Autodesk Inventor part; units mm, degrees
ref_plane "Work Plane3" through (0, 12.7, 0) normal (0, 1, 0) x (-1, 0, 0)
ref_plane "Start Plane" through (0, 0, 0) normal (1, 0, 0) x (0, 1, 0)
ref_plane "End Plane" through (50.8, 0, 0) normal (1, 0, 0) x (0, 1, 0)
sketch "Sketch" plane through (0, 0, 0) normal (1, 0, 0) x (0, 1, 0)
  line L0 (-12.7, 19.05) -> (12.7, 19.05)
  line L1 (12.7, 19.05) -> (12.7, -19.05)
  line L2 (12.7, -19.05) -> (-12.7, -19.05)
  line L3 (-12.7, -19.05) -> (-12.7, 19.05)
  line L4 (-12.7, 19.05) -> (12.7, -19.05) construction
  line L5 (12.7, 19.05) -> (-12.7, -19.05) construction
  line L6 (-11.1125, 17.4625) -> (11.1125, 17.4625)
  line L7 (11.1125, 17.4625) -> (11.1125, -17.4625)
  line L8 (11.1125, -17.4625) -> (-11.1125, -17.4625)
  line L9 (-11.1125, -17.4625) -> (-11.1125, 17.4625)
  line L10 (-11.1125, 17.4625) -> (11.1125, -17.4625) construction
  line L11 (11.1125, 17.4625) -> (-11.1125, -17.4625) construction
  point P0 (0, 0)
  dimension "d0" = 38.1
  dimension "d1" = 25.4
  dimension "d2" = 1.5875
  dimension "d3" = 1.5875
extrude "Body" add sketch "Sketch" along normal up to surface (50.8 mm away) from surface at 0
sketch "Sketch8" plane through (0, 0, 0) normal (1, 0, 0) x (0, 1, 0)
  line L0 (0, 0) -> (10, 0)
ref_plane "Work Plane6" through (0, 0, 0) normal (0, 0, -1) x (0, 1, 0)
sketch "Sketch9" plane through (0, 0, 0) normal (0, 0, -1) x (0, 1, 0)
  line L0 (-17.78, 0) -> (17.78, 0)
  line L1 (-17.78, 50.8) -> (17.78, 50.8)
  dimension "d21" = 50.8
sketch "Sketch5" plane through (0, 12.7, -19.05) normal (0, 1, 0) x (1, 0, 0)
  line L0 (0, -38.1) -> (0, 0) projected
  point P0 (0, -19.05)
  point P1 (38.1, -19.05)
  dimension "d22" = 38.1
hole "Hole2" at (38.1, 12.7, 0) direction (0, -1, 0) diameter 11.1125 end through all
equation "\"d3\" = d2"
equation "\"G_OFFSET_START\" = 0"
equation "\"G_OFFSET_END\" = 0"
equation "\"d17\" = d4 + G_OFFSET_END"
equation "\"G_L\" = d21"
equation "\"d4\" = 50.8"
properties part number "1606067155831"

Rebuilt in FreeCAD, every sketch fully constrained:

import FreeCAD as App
import Part
import Sketcher
Q = App.Units.Quantity


def add_polygon(sketch, points):
    """Adds a closed chain of lines whose ends are joined by coincident constraints."""
    first, n = sketch.GeometryCount, len(points)
    for a, b in zip(points, points[1:] + points[:1]):
        sketch.addGeometry(Part.LineSegment(App.Vector(*a, 0), App.Vector(*b, 0)), False)
    for i in range(n):
        sketch.addConstraint(Sketcher.Constraint("Coincident", first + i, 2, first + (i + 1) % n, 1))

doc = App.newDocument("Part")
body = doc.addObject("PartDesign::Body", "Body")

# Sketch on YZ plane
sketch1 = body.newObject("Sketcher::SketchObject", "Sketch")
sketch1.AttachmentSupport = (doc.getObject("YZ_Plane"), [""])
sketch1.MapMode = "FlatFace"
add_polygon(sketch1, [(13, 19), (-13, 19), (-13, -19), (13, -19)])  # lines 0-3
add_polygon(sketch1, [(-11, -17), (-11, 17), (11, 17), (11, -17)])  # lines 4-7
sketch1.addConstraint([
    Sketcher.Constraint("Horizontal", 0),
    Sketcher.Constraint("Vertical", 1),
    Sketcher.Constraint("Horizontal", 2),
    Sketcher.Constraint("Vertical", 3),
    Sketcher.Constraint("Vertical", 4),
    Sketcher.Constraint("Horizontal", 5),
    Sketcher.Constraint("Vertical", 6),
    Sketcher.Constraint("Horizontal", 7),
    Sketcher.Constraint("Symmetric", 0, 2, 2, 2, -1, 1),
    Sketcher.Constraint("Symmetric", 4, 2, 6, 2, -1, 1),
    Sketcher.Constraint("DistanceX", 0, 2, 0, 1, Q("1 in")),
    Sketcher.Constraint("DistanceY", 1, 2, 1, 1, Q("1.5 in")),
    Sketcher.Constraint("DistanceX", 0, 2, 4, 2, Q("0.0625 in")),
    Sketcher.Constraint("DistanceY", 4, 2, 0, 2, Q("0.0625 in")),
])
pad1 = body.newObject("PartDesign::Pad", "Pad")
pad1.Profile = sketch1
pad1.Length = Q("2 in")

# Sketch on XZ plane
sketch2 = body.newObject("Sketcher::SketchObject", "Sketch001")
sketch2.AttachmentSupport = (doc.getObject("XZ_Plane"), [""])
sketch2.MapMode = "FlatFace"
sketch2.AttachmentOffset = App.Placement(App.Vector(0, 0, -0.5 * 25.4), App.Rotation())
sketch2.addGeometry(Part.Circle(App.Vector(38, 0, 0), App.Vector(0, 0, 1), 6), False)
sketch2.addConstraint([
    Sketcher.Constraint("PointOnObject", 0, 3, -1),
    Sketcher.Constraint("Diameter", 0, Q("0.4375 in")),
    Sketcher.Constraint("DistanceX", -1, 1, 0, 3, Q("1.5 in")),
])
doc.recompute()
hole = body.newObject("PartDesign::Hole", "Hole")
hole.Profile = sketch2
hole.ThreadType = "None"
hole.Diameter = Q("0.4375 in")
hole.DepthType = "ThroughAll"
hole.Reversed = True

doc.recompute()
